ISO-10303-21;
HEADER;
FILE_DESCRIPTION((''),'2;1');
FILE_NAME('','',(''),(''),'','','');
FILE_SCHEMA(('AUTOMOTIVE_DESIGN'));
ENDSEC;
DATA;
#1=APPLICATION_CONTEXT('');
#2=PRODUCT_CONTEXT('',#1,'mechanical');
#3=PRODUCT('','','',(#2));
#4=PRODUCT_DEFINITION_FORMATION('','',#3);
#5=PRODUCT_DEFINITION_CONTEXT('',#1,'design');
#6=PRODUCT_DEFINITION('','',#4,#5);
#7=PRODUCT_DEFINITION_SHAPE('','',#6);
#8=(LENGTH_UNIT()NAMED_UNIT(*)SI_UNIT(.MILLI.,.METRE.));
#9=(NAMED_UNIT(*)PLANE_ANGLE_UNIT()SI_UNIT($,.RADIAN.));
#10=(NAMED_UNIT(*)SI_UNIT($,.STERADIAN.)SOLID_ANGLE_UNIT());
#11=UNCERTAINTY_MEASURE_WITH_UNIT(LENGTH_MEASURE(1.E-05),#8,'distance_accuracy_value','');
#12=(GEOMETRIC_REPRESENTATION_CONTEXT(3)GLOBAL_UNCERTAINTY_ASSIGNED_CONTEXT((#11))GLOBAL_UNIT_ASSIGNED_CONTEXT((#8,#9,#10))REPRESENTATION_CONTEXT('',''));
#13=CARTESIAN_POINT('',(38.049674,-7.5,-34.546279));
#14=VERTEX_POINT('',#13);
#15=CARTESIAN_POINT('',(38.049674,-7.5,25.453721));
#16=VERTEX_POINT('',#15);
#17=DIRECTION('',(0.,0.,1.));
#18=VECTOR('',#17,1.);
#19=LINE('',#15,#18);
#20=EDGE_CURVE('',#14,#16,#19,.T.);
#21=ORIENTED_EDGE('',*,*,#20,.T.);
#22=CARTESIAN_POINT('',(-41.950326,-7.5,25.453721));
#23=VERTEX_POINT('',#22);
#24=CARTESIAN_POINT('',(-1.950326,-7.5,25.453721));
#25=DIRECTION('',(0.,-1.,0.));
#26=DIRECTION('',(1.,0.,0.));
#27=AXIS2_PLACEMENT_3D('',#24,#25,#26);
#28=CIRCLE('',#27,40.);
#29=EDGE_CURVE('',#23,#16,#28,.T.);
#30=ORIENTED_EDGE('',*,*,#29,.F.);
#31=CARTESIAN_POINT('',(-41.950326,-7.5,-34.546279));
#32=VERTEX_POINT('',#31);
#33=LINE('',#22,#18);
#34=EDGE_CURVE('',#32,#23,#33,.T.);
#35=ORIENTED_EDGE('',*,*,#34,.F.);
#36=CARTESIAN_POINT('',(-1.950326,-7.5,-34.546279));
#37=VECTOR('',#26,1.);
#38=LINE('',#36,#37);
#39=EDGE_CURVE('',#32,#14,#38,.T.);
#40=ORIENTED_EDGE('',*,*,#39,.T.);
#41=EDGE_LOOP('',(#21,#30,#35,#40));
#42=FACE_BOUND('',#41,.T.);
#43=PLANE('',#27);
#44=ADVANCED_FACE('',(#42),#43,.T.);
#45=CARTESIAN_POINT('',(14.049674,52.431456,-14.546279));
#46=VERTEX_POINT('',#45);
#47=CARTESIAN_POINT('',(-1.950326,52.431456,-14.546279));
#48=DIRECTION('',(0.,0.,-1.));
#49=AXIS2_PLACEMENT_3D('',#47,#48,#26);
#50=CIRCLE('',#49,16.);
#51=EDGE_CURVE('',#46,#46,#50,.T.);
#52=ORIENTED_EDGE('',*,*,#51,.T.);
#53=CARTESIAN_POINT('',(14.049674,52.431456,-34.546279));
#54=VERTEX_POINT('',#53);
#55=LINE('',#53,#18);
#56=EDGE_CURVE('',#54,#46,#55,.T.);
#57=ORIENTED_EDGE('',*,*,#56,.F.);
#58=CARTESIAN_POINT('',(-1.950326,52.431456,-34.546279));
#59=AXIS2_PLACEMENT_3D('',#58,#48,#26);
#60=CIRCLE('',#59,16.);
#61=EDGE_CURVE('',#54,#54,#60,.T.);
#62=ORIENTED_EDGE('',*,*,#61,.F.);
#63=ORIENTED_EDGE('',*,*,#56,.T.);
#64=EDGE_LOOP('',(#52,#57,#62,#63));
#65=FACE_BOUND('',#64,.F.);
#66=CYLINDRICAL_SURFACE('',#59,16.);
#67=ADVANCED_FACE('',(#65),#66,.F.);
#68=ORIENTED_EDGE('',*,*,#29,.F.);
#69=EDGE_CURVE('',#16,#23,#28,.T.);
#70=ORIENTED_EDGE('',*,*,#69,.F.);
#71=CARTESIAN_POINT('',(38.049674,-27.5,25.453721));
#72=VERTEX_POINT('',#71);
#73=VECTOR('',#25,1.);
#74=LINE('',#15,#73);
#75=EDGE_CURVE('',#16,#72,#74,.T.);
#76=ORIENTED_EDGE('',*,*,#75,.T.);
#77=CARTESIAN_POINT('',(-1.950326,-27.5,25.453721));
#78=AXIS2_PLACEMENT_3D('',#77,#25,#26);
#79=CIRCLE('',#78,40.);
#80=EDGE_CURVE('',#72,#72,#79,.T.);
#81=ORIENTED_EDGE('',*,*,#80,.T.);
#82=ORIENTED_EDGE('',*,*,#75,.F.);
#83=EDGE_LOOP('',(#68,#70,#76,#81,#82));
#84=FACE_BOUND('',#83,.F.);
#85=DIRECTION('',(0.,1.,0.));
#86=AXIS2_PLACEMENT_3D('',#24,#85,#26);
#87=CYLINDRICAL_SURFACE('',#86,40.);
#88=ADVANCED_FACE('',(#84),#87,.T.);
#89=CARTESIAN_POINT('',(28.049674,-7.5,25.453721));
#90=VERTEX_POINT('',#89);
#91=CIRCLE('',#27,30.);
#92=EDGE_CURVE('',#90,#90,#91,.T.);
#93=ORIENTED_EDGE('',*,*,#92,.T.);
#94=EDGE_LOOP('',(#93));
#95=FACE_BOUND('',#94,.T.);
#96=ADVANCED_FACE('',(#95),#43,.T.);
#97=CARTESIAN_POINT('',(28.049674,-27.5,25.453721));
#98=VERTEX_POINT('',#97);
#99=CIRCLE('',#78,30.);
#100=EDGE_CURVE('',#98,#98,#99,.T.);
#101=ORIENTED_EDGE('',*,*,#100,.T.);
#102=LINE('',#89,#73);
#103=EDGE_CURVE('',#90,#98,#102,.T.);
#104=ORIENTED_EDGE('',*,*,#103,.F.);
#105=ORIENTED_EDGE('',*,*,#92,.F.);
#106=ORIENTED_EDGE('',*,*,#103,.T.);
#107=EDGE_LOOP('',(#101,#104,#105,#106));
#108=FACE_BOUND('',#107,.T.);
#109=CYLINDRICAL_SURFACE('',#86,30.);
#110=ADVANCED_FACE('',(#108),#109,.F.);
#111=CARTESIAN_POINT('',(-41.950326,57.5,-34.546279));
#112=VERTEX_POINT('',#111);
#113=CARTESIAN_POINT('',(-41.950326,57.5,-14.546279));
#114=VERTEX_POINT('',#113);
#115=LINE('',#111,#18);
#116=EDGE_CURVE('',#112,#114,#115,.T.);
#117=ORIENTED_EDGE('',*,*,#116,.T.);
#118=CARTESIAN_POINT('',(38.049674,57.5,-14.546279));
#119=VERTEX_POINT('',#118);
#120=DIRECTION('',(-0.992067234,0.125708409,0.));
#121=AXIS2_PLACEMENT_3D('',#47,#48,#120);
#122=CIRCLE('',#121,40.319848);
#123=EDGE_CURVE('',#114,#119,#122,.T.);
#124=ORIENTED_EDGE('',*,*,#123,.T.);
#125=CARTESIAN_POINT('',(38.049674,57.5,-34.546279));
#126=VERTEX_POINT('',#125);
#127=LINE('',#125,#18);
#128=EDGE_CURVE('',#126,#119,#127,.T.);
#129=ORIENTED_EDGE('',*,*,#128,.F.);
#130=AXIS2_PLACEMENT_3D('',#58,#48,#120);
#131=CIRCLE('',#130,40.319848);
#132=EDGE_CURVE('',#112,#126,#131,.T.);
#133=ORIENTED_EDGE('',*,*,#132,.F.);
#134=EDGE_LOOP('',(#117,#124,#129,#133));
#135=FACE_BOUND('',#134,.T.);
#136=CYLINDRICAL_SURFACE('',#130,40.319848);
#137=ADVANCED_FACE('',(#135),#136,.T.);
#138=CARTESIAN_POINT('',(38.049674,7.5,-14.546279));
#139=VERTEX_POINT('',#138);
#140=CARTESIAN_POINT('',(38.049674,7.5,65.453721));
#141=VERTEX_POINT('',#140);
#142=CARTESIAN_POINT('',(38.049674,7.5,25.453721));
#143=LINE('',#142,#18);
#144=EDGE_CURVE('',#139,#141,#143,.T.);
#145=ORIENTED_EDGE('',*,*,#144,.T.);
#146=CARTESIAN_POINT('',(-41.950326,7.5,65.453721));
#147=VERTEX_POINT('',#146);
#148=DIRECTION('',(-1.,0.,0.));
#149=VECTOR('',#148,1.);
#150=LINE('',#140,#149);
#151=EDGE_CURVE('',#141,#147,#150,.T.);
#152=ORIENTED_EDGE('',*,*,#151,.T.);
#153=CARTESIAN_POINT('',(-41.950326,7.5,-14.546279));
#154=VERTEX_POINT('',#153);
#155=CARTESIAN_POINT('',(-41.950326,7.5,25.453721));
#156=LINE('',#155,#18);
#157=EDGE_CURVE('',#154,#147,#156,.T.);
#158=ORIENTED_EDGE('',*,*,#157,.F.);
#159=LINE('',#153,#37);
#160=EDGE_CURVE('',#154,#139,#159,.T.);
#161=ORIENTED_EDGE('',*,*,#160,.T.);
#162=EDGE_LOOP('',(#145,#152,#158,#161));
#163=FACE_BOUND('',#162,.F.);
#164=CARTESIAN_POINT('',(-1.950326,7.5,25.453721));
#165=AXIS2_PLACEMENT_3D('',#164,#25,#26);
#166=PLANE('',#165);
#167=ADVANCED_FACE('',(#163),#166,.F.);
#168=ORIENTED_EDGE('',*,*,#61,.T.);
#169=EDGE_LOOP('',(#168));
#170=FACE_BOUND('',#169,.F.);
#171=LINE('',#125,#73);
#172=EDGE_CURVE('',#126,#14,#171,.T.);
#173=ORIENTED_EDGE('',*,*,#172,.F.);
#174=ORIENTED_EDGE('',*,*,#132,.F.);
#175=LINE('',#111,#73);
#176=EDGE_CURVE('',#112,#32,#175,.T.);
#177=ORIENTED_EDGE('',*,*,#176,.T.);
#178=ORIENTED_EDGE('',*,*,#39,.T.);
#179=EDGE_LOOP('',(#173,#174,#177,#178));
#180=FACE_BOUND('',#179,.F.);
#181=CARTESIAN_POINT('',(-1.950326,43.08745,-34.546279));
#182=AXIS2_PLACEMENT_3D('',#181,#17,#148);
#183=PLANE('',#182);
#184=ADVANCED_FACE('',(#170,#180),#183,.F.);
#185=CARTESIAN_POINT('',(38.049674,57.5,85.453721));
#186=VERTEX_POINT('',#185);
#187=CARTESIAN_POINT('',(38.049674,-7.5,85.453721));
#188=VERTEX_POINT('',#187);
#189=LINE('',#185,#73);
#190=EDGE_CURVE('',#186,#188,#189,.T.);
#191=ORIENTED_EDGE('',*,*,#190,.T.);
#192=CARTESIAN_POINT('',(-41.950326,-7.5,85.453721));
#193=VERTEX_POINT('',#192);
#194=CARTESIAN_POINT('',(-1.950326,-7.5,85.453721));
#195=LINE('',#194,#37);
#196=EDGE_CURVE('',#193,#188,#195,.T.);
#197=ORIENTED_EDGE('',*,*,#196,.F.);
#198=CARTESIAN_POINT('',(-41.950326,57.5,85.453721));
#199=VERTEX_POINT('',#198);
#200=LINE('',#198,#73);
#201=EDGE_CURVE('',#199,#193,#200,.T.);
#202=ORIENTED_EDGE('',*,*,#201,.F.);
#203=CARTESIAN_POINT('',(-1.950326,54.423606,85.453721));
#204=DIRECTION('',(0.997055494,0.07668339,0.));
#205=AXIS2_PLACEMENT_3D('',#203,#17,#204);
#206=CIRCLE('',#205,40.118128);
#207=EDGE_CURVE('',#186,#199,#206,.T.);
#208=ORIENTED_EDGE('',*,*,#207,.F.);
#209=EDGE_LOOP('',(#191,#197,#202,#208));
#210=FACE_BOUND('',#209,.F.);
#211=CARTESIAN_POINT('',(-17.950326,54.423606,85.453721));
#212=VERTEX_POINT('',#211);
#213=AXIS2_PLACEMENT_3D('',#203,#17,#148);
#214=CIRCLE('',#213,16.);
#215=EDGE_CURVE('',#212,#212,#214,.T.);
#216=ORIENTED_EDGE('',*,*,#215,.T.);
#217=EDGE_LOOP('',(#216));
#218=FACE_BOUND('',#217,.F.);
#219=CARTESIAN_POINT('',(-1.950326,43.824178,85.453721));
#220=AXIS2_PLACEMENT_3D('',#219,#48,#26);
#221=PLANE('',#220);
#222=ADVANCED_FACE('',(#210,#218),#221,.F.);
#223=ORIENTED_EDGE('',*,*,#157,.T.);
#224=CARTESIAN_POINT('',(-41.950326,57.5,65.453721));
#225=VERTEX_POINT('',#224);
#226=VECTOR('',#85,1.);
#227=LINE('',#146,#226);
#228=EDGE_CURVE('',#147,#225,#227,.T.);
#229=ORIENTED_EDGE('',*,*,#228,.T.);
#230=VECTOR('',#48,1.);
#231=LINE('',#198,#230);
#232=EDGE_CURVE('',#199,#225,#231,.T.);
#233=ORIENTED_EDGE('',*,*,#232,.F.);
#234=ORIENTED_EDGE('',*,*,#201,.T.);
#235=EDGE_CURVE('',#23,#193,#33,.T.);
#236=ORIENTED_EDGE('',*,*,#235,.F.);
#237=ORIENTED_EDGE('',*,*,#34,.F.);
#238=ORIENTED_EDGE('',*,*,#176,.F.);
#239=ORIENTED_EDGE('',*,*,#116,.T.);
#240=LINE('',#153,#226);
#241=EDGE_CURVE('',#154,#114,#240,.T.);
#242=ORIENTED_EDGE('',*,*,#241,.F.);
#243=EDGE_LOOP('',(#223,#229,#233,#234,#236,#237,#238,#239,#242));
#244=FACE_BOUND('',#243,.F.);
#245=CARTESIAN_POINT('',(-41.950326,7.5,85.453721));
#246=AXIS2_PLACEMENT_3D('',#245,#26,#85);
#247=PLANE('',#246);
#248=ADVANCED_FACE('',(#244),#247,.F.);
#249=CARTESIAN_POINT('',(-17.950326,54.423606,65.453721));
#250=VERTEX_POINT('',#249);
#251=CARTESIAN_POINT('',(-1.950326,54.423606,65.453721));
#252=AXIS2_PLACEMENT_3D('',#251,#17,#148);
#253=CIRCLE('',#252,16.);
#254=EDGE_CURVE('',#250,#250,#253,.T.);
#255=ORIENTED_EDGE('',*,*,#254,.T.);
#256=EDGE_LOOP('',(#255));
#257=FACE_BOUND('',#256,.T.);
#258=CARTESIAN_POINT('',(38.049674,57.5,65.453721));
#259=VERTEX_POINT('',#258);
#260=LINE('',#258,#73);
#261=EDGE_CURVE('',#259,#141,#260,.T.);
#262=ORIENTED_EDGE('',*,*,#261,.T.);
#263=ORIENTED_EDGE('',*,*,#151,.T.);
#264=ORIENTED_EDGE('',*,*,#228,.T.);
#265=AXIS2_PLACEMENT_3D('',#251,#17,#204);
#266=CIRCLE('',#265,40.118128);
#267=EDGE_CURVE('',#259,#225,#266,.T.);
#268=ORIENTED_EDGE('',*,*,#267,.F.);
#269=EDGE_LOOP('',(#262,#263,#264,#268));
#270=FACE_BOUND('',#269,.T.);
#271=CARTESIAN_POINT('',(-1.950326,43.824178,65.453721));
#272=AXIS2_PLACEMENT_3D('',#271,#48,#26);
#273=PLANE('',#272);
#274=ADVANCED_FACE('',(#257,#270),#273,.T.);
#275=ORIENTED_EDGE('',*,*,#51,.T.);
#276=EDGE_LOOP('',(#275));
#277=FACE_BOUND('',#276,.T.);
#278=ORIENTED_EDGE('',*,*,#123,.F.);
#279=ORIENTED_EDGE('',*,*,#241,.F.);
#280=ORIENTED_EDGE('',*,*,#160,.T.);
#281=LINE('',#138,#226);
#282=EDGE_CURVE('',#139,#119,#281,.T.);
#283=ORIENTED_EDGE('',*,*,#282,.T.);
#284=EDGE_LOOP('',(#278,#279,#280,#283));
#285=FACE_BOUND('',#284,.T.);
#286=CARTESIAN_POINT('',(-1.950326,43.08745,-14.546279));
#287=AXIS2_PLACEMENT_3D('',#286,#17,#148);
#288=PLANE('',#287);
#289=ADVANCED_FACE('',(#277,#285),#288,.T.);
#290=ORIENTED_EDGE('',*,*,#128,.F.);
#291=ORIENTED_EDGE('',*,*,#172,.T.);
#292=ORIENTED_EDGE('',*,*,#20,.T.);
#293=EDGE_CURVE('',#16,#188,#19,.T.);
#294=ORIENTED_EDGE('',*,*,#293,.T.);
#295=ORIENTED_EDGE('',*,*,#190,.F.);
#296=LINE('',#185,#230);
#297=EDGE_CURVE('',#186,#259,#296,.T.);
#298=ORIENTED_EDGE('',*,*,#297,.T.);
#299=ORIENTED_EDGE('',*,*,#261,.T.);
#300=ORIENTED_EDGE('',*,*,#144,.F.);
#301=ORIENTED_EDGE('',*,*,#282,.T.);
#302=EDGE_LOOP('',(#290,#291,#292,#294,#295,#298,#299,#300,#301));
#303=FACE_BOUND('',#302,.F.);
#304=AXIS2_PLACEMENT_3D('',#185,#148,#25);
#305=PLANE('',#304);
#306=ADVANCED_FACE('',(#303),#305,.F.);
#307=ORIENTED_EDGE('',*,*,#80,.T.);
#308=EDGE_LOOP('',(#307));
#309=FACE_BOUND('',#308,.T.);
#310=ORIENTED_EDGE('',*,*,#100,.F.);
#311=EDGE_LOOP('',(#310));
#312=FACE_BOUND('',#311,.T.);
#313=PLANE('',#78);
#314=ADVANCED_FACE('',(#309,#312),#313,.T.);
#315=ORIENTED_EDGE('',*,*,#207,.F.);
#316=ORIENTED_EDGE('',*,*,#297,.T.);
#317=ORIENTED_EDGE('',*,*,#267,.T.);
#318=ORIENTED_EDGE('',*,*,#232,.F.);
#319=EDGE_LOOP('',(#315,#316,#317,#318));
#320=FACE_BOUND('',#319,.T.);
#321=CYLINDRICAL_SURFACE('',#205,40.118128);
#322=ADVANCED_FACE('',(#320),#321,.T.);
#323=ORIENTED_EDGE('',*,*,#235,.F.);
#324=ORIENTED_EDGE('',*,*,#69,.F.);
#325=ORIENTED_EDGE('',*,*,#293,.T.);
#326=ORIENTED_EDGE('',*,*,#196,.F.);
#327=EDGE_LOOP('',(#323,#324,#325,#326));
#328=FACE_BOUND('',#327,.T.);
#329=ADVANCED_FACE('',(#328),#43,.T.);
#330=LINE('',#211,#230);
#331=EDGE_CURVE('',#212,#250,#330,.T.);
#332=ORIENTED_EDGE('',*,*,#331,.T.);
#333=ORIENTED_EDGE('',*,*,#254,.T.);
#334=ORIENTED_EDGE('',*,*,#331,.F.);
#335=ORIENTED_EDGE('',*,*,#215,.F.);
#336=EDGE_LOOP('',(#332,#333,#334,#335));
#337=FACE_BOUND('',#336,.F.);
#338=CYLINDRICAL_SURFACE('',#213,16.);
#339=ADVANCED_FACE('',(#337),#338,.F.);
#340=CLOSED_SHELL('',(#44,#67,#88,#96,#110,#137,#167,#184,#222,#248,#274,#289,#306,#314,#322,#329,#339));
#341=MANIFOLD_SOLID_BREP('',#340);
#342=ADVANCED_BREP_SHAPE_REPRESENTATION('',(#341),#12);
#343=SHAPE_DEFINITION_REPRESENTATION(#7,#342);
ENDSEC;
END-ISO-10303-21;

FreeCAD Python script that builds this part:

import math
import FreeCAD as App
import Part
import Sketcher
from FreeCAD import Vector
Q = App.Units.Quantity


def add_polygon(sketch, points):
    """Adds a closed chain of lines whose ends are joined by coincident constraints."""
    first, n = sketch.GeometryCount, len(points)
    for a, b in zip(points, points[1:] + points[:1]):
        sketch.addGeometry(Part.LineSegment(App.Vector(*a, 0), App.Vector(*b, 0)), False)
    for i in range(n):
        sketch.addConstraint(Sketcher.Constraint("Coincident", first + i, 2, first + (i + 1) % n, 1))

doc = App.newDocument("Part")
body = doc.addObject("PartDesign::Body", "Body")

# Sketch on XZ plane
sketch1 = body.newObject("Sketcher::SketchObject", "Sketch")
sketch1.AttachmentSupport = (doc.getObject("XZ_Plane"), [""])
sketch1.MapMode = "FlatFace"
add_polygon(sketch1, [(-42, 85), (-42, -35), (38, -35), (38, 85)])  # lines 0-3
sketch1.addConstraint([
    Sketcher.Constraint("Vertical", 0),
    Sketcher.Constraint("Horizontal", 1),
    Sketcher.Constraint("Vertical", 2),
    Sketcher.Constraint("Horizontal", 3),
    Sketcher.Constraint("DistanceX", 1, 1, 1, 2, Q("80 mm")),
    Sketcher.Constraint("DistanceY", 0, 2, 0, 1, Q("120 mm")),
    Sketcher.Constraint("DistanceY", 0, 2, -1, 1, Q("34.546279 mm")),
    Sketcher.Constraint("DistanceX", 0, 2, -1, 1, Q("41.950326 mm")),
])
pad1 = body.newObject("PartDesign::Pad", "Pad")
pad1.Profile = sketch1
pad1.Length = 15
pad1.Midplane = True

# Sketch on XY plane
sketch2 = body.newObject("Sketcher::SketchObject", "Sketch001")
sketch2.AttachmentSupport = (doc.getObject("XY_Plane"), [""])
sketch2.MapMode = "FlatFace"
sketch2.AttachmentOffset = App.Placement(Vector(0, 0, -34.546279), App.Rotation())
sketch2.addGeometry([
    Part.LineSegment(Vector(38, 8, 0), Vector(-42, 8, 0)),  # 0
    Part.LineSegment(Vector(-42, 8, 0), Vector(-42, 58, 0)),  # 1
    Part.ArcOfCircle(Part.Circle(Vector(-2, 52, 0), Vector(0, 0, 1), 40), math.radians(7), math.radians(173)),  # 2
    Part.LineSegment(Vector(38, 58, 0), Vector(38, 8, 0)),  # 3
    Part.Circle(Vector(-2, 52, 0), Vector(0, 0, 1), 16),  # 4
], False)
sketch2.addConstraint([
    Sketcher.Constraint("Coincident", 0, 2, 1, 1),
    Sketcher.Constraint("Coincident", 1, 2, 2, 2),
    Sketcher.Constraint("Coincident", 2, 1, 3, 1),
    Sketcher.Constraint("Coincident", 3, 2, 0, 1),
    Sketcher.Constraint("Horizontal", 0),
    Sketcher.Constraint("Vertical", 1),
    Sketcher.Constraint("Vertical", 3),
    Sketcher.Constraint("Coincident", 4, 3, 2, 3),
    Sketcher.Constraint("Horizontal", 1, 2, 2, 1),
    Sketcher.Constraint("Diameter", 4, Q("32 mm")),
    Sketcher.Constraint("DistanceX", 0, 2, 0, 1, Q("80 mm")),
    Sketcher.Constraint("DistanceY", 1, 1, 1, 2, Q("50 mm")),
    Sketcher.Constraint("DistanceY", -1, 1, 0, 2, Q("7.5 mm")),
    Sketcher.Constraint("Radius", 2, Q("40.319848 mm")),
    Sketcher.Constraint("DistanceX", 2, 3, -1, 1, Q("1.950326 mm")),
])
pad2 = body.newObject("PartDesign::Pad", "Pad001")
pad2.Profile = sketch2
pad2.Length = 20

# Sketch on XY plane
sketch3 = body.newObject("Sketcher::SketchObject", "Sketch002")
sketch3.AttachmentSupport = (doc.getObject("XY_Plane"), [""])
sketch3.MapMode = "FlatFace"
sketch3.AttachmentOffset = App.Placement(Vector(0, 0, 85.453721), App.Rotation())
sketch3.addGeometry([
    Part.LineSegment(Vector(38, 8, 0), Vector(38, 58, 0)),  # 0
    Part.ArcOfCircle(Part.Circle(Vector(-2, 54, 0), Vector(0, 0, 1), 40), math.radians(4), math.radians(176)),  # 1
    Part.LineSegment(Vector(-42, 58, 0), Vector(-42, 8, 0)),  # 2
    Part.LineSegment(Vector(-42, 8, 0), Vector(38, 8, 0)),  # 3
    Part.Circle(Vector(-2, 54, 0), Vector(0, 0, 1), 16),  # 4
], False)
sketch3.addConstraint([
    Sketcher.Constraint("Coincident", 0, 2, 1, 1),
    Sketcher.Constraint("Coincident", 1, 2, 2, 1),
    Sketcher.Constraint("Coincident", 2, 2, 3, 1),
    Sketcher.Constraint("Coincident", 3, 2, 0, 1),
    Sketcher.Constraint("Vertical", 0),
    Sketcher.Constraint("Vertical", 2),
    Sketcher.Constraint("Horizontal", 3),
    Sketcher.Constraint("Coincident", 4, 3, 1, 3),
    Sketcher.Constraint("Horizontal", 0, 2, 1, 2),
    Sketcher.Constraint("Diameter", 4, Q("32 mm")),
    Sketcher.Constraint("DistanceX", 3, 1, 3, 2, Q("80 mm")),
    Sketcher.Constraint("DistanceY", 0, 1, 0, 2, Q("50 mm")),
    Sketcher.Constraint("DistanceY", -1, 1, 0, 2, Q("57.5 mm")),
    Sketcher.Constraint("Radius", 1, Q("40.118128 mm")),
    Sketcher.Constraint("DistanceX", 1, 3, -1, 1, Q("1.950326 mm")),
])
pad3 = body.newObject("PartDesign::Pad", "Pad002")
pad3.Profile = sketch3
pad3.Length = 20
pad3.Reversed = True

# Sketch on XZ plane
sketch4 = body.newObject("Sketcher::SketchObject", "Sketch003")
sketch4.AttachmentSupport = (doc.getObject("XZ_Plane"), [""])
sketch4.MapMode = "FlatFace"
sketch4.AttachmentOffset = App.Placement(Vector(0, 0, 7.5), App.Rotation())
sketch4.addGeometry([
    Part.Circle(Vector(-2, 25, 0), Vector(0, 0, 1), 40),
    Part.Circle(Vector(-2, 25, 0), Vector(0, 0, 1), 30),
], False)
sketch4.addConstraint([
    Sketcher.Constraint("Coincident", 1, 3, 0, 3),
    Sketcher.Constraint("Diameter", 0, Q("80 mm")),
    Sketcher.Constraint("Diameter", 1, Q("60 mm")),
    Sketcher.Constraint("DistanceY", -1, 1, 0, 3, Q("25.453721 mm")),
    Sketcher.Constraint("DistanceX", 0, 3, -1, 1, Q("1.950326 mm")),
])
pad4 = body.newObject("PartDesign::Pad", "Pad003")
pad4.Profile = sketch4
pad4.Length = 20

doc.recompute()
